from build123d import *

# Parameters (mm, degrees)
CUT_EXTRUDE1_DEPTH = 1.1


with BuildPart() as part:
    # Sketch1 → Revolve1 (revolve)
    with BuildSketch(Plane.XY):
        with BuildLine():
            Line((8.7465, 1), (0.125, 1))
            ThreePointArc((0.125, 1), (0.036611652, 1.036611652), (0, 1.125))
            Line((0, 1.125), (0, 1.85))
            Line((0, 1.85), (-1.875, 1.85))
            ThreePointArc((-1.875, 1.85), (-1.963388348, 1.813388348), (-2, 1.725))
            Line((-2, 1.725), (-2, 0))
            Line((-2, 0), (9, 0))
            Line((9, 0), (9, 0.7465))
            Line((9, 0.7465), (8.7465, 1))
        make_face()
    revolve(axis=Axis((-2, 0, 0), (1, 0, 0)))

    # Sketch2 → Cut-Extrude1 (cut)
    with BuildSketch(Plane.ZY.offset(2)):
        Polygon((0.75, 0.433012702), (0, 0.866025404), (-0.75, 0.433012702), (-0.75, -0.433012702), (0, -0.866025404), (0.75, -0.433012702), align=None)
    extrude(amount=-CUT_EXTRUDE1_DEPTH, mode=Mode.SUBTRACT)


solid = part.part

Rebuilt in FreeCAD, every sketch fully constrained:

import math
import FreeCAD as App
import Part
import Sketcher
Q = App.Units.Quantity

doc = App.newDocument("Part")
body = doc.addObject("PartDesign::Body", "Body")

# Sketch on XY plane
sketch1 = body.newObject("Sketcher::SketchObject", "Sketch")
sketch1.AttachmentSupport = (doc.getObject("XY_Plane"), [""])
sketch1.MapMode = "FlatFace"
sketch1.addGeometry([
    Part.LineSegment(App.Vector(8.75, 1, 0), App.Vector(0.12, 1, 0)),  # 0
    Part.ArcOfCircle(Part.Circle(App.Vector(0.12, 1.12, 0), App.Vector(0, 0, 1), 0.12), math.radians(180), math.radians(270)),  # 1
    Part.LineSegment(App.Vector(0, 1.12, 0), App.Vector(0, 1.85, 0)),  # 2
    Part.LineSegment(App.Vector(0, 1.85, 0), App.Vector(-1.88, 1.85, 0)),  # 3
    Part.ArcOfCircle(Part.Circle(App.Vector(-1.88, 1.73, 0), App.Vector(0, 0, 1), 0.12), math.radians(90), math.radians(180)),  # 4
    Part.LineSegment(App.Vector(-2, 1.73, 0), App.Vector(-2, 0, 0)),  # 5
    Part.LineSegment(App.Vector(-2, 0, 0), App.Vector(9, 0, 0)),  # 6
    Part.LineSegment(App.Vector(9, 0, 0), App.Vector(9, 0.75, 0)),  # 7
    Part.LineSegment(App.Vector(9, 0.75, 0), App.Vector(8.75, 1, 0)),  # 8
], False)
sketch1.addConstraint([
    Sketcher.Constraint("Tangent", 0, 2, 1, 2),
    Sketcher.Constraint("Tangent", 1, 1, 2, 1),
    Sketcher.Constraint("Coincident", 2, 2, 3, 1),
    Sketcher.Constraint("Tangent", 3, 2, 4, 1),
    Sketcher.Constraint("Tangent", 4, 2, 5, 1),
    Sketcher.Constraint("Coincident", 5, 2, 6, 1),
    Sketcher.Constraint("Coincident", 6, 2, 7, 1),
    Sketcher.Constraint("Coincident", 7, 2, 8, 1),
    Sketcher.Constraint("Coincident", 8, 2, 0, 1),
    Sketcher.Constraint("Horizontal", 0),
    Sketcher.Constraint("Vertical", 2),
    Sketcher.Constraint("Horizontal", 3),
    Sketcher.Constraint("Vertical", 5),
    Sketcher.Constraint("Horizontal", 6),
    Sketcher.Constraint("Vertical", 7),
    Sketcher.Constraint("Equal", 1, 4),
    Sketcher.Constraint("PointOnObject", 1, 1, -2),
    Sketcher.Constraint("PointOnObject", 5, 2, -1),
    Sketcher.Constraint("DistanceX", 6, 1, 6, 2, 11.0),
    Sketcher.Constraint("Angle", 8, Q("135 deg")),
    Sketcher.Constraint("DistanceY", -1, 1, 0, 2, 1.0),
    Sketcher.Constraint("DistanceX", 4, 2, -1, 1, 2.0),
    Sketcher.Constraint("Radius", 1, 0.125),
    Sketcher.Constraint("DistanceY", 1, 3, 4, 3, 0.6),
    Sketcher.Constraint("DistanceX", 0, 2, 0, 1, 8.6215),
])
revolution = body.newObject("PartDesign::Revolution", "Revolution")
revolution.Profile = sketch1
revolution.ReferenceAxis = (sketch1, ["H_Axis"])
revolution.Angle = 360

# Sketch on YZ plane
sketch2 = body.newObject("Sketcher::SketchObject", "Sketch001")
sketch2.AttachmentSupport = (doc.getObject("YZ_Plane"), [""])
sketch2.MapMode = "FlatFace"
sketch2.AttachmentOffset = App.Placement(App.Vector(0, 0, -2), App.Rotation())
sketch2.addGeometry([
    Part.LineSegment(App.Vector(0.4, 0.8, 0), App.Vector(0.9, 0, 0)),  # 0
    Part.LineSegment(App.Vector(0.9, 0, 0), App.Vector(0.4, -0.8, 0)),  # 1
    Part.LineSegment(App.Vector(0.4, -0.8, 0), App.Vector(-0.4, -0.8, 0)),  # 2
    Part.LineSegment(App.Vector(-0.4, -0.8, 0), App.Vector(-0.9, 0, 0)),  # 3
    Part.LineSegment(App.Vector(-0.9, 0, 0), App.Vector(-0.4, 0.8, 0)),  # 4
    Part.LineSegment(App.Vector(-0.4, 0.8, 0), App.Vector(0.4, 0.8, 0)),  # 5
], False)
sketch2.addConstraint([
    Sketcher.Constraint("Coincident", 0, 2, 1, 1),
    Sketcher.Constraint("Coincident", 1, 2, 2, 1),
    Sketcher.Constraint("Coincident", 2, 2, 3, 1),
    Sketcher.Constraint("Coincident", 3, 2, 4, 1),
    Sketcher.Constraint("Coincident", 4, 2, 5, 1),
    Sketcher.Constraint("Coincident", 5, 2, 0, 1),
    Sketcher.Constraint("Horizontal", 2),
    Sketcher.Constraint("Horizontal", 5),
    Sketcher.Constraint("Symmetric", 0, 2, 3, 2, -1, 1),
    Sketcher.Constraint("Symmetric", 1, 2, 4, 2, -1, 1),
    Sketcher.Constraint("PointOnObject", 0, 2, -1),
    Sketcher.Constraint("Parallel", 0, 3),
    Sketcher.Constraint("Vertical", 2, 2, 4, 2),
    Sketcher.Constraint("Angle", 0, Q("-60 deg")),
    Sketcher.Constraint("DistanceY", 2, 2, 4, 2, 1.5),
    Sketcher.Constraint("DistanceX", 2, 2, 2, 1, 0.866025),
])
pocket1 = body.newObject("PartDesign::Pocket", "Pocket")
pocket1.Profile = sketch2
pocket1.Length = 1.1
pocket1.Reversed = True

doc.recompute()
